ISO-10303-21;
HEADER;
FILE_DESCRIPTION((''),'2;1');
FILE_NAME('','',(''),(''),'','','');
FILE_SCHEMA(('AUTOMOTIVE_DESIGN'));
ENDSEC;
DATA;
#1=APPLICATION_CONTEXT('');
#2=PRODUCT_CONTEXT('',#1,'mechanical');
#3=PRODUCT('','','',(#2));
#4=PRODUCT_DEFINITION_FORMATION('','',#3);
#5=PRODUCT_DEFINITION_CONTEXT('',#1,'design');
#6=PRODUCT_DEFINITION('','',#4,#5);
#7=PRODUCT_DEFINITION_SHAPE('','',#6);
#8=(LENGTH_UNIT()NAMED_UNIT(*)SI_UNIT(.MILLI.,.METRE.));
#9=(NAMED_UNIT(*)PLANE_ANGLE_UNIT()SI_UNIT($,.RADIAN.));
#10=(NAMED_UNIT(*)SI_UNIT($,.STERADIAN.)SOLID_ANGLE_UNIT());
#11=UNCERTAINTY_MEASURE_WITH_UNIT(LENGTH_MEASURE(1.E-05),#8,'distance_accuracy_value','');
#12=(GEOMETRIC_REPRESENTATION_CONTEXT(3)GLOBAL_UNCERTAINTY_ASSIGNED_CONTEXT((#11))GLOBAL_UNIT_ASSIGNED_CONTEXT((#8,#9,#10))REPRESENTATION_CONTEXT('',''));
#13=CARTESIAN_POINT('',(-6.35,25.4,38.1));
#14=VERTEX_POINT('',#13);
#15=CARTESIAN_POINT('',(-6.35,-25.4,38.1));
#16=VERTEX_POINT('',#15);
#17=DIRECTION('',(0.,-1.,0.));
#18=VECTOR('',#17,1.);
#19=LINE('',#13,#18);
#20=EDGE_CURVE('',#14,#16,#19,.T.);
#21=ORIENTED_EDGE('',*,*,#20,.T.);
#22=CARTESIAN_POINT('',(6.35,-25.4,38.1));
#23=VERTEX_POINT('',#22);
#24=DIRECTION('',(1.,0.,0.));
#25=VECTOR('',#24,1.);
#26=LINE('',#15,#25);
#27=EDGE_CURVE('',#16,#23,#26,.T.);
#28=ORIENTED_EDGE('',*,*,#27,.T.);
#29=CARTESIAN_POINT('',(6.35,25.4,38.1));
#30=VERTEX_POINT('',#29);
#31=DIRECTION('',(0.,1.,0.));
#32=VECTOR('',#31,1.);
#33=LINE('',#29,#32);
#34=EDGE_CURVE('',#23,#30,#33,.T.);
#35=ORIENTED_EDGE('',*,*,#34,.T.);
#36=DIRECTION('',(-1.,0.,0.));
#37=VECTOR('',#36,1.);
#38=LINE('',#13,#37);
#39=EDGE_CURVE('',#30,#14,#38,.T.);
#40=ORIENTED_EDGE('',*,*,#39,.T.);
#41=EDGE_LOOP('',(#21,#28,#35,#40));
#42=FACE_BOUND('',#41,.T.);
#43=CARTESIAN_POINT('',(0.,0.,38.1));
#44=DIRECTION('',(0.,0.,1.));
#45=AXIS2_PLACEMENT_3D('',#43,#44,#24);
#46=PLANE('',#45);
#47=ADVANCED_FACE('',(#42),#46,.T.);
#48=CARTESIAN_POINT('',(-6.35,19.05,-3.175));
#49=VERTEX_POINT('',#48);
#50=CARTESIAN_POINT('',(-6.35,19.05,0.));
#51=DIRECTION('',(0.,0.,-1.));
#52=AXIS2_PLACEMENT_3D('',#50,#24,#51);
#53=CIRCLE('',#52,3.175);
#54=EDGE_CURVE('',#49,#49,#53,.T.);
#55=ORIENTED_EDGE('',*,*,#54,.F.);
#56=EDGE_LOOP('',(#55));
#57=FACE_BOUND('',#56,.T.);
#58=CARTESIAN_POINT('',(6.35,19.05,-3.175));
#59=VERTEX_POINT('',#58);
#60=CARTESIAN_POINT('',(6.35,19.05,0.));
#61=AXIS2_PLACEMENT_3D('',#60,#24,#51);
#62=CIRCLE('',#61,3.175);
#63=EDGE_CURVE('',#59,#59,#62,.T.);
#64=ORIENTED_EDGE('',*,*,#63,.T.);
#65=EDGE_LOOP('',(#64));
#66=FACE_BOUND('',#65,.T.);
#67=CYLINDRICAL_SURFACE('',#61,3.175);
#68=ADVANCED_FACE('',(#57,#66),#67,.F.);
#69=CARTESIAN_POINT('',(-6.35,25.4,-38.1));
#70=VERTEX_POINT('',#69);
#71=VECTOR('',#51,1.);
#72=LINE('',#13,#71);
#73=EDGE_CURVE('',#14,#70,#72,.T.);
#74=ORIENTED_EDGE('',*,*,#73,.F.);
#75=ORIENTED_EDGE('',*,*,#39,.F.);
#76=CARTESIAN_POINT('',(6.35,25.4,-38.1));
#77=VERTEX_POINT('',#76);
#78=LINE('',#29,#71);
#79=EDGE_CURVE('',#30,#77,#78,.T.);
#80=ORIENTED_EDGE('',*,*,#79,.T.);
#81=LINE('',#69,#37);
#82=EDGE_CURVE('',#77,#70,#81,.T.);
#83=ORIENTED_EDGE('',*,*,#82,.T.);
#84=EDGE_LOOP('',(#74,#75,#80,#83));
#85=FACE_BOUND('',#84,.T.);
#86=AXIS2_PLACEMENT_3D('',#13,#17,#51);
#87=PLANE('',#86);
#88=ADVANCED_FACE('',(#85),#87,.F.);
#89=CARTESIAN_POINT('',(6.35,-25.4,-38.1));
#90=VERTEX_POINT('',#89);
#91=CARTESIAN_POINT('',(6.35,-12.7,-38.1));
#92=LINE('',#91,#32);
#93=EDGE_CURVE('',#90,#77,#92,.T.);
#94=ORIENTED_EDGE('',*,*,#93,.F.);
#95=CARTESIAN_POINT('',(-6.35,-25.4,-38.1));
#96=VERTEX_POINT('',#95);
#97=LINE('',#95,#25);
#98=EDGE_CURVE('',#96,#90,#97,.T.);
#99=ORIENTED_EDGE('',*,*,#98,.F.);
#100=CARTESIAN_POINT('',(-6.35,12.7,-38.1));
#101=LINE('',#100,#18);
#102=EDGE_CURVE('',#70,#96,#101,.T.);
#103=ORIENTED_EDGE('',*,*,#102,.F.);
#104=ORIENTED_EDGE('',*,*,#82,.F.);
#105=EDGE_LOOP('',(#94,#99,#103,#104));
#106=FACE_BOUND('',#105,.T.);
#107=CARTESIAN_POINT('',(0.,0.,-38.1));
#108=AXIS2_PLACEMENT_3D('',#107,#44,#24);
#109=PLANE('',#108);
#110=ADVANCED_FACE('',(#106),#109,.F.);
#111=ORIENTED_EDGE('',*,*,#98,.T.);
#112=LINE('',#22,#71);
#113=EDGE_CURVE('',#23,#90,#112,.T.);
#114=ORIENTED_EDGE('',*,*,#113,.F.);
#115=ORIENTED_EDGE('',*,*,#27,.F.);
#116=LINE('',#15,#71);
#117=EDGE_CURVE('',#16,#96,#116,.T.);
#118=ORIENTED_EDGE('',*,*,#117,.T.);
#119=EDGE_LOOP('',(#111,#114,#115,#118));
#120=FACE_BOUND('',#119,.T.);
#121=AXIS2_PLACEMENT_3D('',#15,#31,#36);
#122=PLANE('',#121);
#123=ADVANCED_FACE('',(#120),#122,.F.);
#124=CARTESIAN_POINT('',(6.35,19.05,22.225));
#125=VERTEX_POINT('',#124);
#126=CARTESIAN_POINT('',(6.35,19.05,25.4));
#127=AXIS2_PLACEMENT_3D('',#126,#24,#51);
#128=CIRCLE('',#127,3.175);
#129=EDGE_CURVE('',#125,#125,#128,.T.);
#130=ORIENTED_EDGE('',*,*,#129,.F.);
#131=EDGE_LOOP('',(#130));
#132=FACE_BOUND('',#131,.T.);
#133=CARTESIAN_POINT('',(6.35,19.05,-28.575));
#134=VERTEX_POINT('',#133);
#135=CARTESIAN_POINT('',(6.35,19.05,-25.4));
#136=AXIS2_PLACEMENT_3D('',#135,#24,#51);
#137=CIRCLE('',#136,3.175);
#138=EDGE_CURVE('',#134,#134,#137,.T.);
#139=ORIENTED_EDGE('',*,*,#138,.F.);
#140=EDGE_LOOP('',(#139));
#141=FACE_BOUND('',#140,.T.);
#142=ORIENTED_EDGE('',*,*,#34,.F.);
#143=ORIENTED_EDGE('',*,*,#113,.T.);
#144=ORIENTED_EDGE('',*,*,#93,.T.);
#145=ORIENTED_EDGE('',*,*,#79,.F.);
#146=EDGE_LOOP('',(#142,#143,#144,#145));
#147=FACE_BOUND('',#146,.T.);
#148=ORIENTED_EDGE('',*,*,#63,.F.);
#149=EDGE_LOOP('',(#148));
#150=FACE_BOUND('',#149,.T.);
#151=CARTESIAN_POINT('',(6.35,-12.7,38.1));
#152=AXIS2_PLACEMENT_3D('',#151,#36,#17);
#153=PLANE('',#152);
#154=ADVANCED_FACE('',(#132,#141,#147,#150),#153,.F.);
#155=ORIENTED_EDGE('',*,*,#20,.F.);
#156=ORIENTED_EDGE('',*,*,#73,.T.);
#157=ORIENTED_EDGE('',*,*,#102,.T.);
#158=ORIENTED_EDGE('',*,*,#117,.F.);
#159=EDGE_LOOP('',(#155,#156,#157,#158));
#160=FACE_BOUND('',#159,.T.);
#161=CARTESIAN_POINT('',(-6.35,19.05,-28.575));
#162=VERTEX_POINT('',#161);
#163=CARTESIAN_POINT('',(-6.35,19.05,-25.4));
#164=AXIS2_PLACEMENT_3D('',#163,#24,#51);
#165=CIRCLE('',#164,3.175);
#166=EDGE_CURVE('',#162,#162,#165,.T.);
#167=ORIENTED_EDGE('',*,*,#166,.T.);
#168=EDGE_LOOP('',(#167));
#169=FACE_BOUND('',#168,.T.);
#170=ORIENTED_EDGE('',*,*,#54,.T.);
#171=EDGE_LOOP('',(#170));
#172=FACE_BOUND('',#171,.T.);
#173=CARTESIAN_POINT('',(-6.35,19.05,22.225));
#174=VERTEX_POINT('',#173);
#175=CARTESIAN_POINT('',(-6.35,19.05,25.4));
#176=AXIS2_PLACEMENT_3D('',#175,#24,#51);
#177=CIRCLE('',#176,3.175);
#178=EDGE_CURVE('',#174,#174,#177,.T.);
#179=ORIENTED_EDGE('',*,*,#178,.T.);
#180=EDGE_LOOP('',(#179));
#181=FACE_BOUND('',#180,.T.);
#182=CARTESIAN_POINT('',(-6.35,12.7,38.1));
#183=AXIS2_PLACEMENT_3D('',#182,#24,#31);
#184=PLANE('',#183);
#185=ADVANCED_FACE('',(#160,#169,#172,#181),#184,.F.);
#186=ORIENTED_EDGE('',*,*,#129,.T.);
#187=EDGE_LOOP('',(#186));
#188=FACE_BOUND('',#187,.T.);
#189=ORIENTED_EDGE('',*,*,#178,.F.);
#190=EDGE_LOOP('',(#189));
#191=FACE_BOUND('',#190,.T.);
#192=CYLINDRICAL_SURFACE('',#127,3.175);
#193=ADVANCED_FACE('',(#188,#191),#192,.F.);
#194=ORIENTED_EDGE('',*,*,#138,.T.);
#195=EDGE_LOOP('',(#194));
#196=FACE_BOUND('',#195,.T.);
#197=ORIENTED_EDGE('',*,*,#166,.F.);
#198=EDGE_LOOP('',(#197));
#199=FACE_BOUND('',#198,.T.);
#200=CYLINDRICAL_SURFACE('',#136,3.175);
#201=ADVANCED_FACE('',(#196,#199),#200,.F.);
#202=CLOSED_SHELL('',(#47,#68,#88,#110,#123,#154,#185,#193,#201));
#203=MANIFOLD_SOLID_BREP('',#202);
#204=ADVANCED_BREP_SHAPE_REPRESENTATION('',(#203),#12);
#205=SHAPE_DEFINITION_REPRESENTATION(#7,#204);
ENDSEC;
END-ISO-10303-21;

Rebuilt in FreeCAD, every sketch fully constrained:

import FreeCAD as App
import Part
import Sketcher
Q = App.Units.Quantity


def add_polygon(sketch, points):
    """Adds a closed chain of lines whose ends are joined by coincident constraints."""
    first, n = sketch.GeometryCount, len(points)
    for a, b in zip(points, points[1:] + points[:1]):
        sketch.addGeometry(Part.LineSegment(App.Vector(*a, 0), App.Vector(*b, 0)), False)
    for i in range(n):
        sketch.addConstraint(Sketcher.Constraint("Coincident", first + i, 2, first + (i + 1) % n, 1))

doc = App.newDocument("Part")
body = doc.addObject("PartDesign::Body", "Body")

# Sketch on XY plane
sketch1 = body.newObject("Sketcher::SketchObject", "Sketch")
sketch1.AttachmentSupport = (doc.getObject("XY_Plane"), [""])
sketch1.MapMode = "FlatFace"
add_polygon(sketch1, [(6, 25), (-6, 25), (-6, -25), (6, -25)])  # lines 0-3
sketch1.addConstraint([
    Sketcher.Constraint("Horizontal", 0),
    Sketcher.Constraint("Vertical", 1),
    Sketcher.Constraint("Horizontal", 2),
    Sketcher.Constraint("Vertical", 3),
    Sketcher.Constraint("Symmetric", 0, 2, 2, 2, -1, 1),
    Sketcher.Constraint("DistanceY", 1, 2, 1, 1, Q("2 in")),
    Sketcher.Constraint("DistanceX", 0, 2, 0, 1, Q("0.5 in")),
])
pad1 = body.newObject("PartDesign::Pad", "Pad")
pad1.Profile = sketch1
pad1.Length = Q("3 in")
pad1.Midplane = True

# Sketch on YZ plane
sketch2 = body.newObject("Sketcher::SketchObject", "Sketch001")
sketch2.AttachmentSupport = (doc.getObject("YZ_Plane"), [""])
sketch2.MapMode = "FlatFace"
sketch2.AttachmentOffset = App.Placement(App.Vector(0, 0, 0.25 * 25.4), App.Rotation())
sketch2.addGeometry([
    Part.Circle(App.Vector(19.1, 25.4, 0), App.Vector(0, 0, 1), 3.2),
    Part.Circle(App.Vector(19.1, 0, 0), App.Vector(0, 0, 1), 3.2),
    Part.Circle(App.Vector(19.1, -25.4, 0), App.Vector(0, 0, 1), 3.2),
], False)
sketch2.addConstraint([
    Sketcher.Constraint("Equal", 0, 1),
    Sketcher.Constraint("Equal", 1, 2),
    Sketcher.Constraint("Symmetric", 0, 3, 2, 3, -1),
    Sketcher.Constraint("PointOnObject", 1, 3, -1),
    Sketcher.Constraint("Vertical", 0, 3, 1, 3),
    Sketcher.Constraint("Diameter", 0, Q("0.25 in")),
    Sketcher.Constraint("DistanceY", -1, 1, 0, 3, Q("1 in")),
    Sketcher.Constraint("DistanceX", -1, 1, 0, 3, Q("0.75 in")),
])
doc.recompute()
hole = body.newObject("PartDesign::Hole", "Hole")
hole.Profile = sketch2
hole.ThreadType = "None"
hole.Diameter = Q("0.25 in")
hole.DepthType = "ThroughAll"

doc.recompute()
